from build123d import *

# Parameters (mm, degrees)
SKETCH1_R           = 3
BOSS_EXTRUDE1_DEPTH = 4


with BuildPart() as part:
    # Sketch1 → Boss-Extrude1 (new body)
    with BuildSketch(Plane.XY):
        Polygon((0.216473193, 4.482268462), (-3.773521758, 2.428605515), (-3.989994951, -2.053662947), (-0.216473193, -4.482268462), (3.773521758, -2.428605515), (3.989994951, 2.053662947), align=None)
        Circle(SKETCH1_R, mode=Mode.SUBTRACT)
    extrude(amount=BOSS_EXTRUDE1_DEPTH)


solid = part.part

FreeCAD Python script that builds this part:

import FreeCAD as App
import Part
import Sketcher
from FreeCAD import Vector
Q = App.Units.Quantity


def add_polygon(sketch, points):
    """Adds a closed chain of lines whose ends are joined by coincident constraints."""
    first, n = sketch.GeometryCount, len(points)
    for a, b in zip(points, points[1:] + points[:1]):
        sketch.addGeometry(Part.LineSegment(App.Vector(*a, 0), App.Vector(*b, 0)), False)
    for i in range(n):
        sketch.addConstraint(Sketcher.Constraint("Coincident", first + i, 2, first + (i + 1) % n, 1))

doc = App.newDocument("Part")
body = doc.addObject("PartDesign::Body", "Body")

# Sketch on XY plane
sketch1 = body.newObject("Sketcher::SketchObject", "Sketch")
sketch1.AttachmentSupport = (doc.getObject("XY_Plane"), [""])
sketch1.MapMode = "FlatFace"
add_polygon(sketch1, [(0.2, 4.5), (-3.8, 2.4), (-4, -2.1), (-0.2, -4.5), (3.8, -2.4), (4, 2.1)])  # lines 0-5
sketch1.addGeometry(Part.Circle(Vector(0, 0, 0), Vector(0, 0, 1), 3), False)  # 6
sketch1.addConstraint([
    Sketcher.Constraint("Coincident", 6, 3, -1, 1),
    Sketcher.Constraint("Symmetric", 0, 2, 3, 2, -1, 1),
    Sketcher.Constraint("Symmetric", 1, 2, 4, 2, -1, 1),
    Sketcher.Constraint("Symmetric", 2, 2, 5, 2, -1, 1),
    Sketcher.Constraint("Equal", 0, 1),
    Sketcher.Constraint("Equal", 1, 2),
    Sketcher.Constraint("Diameter", 6, Q("6 mm")),
    Sketcher.Constraint("DistanceX", 0, 2, -1, 1, Q("3.773522 mm")),
    Sketcher.Constraint("DistanceY", 2, 2, -1, 1, Q("4.482268 mm")),
    Sketcher.Constraint("DistanceY", 1, 2, 0, 2, Q("4.482268 mm")),
    Sketcher.Constraint("DistanceX", 1, 2, 2, 2, Q("3.773522 mm")),
])
pad1 = body.newObject("PartDesign::Pad", "Pad")
pad1.Profile = sketch1
pad1.Length = 4

doc.recompute()
